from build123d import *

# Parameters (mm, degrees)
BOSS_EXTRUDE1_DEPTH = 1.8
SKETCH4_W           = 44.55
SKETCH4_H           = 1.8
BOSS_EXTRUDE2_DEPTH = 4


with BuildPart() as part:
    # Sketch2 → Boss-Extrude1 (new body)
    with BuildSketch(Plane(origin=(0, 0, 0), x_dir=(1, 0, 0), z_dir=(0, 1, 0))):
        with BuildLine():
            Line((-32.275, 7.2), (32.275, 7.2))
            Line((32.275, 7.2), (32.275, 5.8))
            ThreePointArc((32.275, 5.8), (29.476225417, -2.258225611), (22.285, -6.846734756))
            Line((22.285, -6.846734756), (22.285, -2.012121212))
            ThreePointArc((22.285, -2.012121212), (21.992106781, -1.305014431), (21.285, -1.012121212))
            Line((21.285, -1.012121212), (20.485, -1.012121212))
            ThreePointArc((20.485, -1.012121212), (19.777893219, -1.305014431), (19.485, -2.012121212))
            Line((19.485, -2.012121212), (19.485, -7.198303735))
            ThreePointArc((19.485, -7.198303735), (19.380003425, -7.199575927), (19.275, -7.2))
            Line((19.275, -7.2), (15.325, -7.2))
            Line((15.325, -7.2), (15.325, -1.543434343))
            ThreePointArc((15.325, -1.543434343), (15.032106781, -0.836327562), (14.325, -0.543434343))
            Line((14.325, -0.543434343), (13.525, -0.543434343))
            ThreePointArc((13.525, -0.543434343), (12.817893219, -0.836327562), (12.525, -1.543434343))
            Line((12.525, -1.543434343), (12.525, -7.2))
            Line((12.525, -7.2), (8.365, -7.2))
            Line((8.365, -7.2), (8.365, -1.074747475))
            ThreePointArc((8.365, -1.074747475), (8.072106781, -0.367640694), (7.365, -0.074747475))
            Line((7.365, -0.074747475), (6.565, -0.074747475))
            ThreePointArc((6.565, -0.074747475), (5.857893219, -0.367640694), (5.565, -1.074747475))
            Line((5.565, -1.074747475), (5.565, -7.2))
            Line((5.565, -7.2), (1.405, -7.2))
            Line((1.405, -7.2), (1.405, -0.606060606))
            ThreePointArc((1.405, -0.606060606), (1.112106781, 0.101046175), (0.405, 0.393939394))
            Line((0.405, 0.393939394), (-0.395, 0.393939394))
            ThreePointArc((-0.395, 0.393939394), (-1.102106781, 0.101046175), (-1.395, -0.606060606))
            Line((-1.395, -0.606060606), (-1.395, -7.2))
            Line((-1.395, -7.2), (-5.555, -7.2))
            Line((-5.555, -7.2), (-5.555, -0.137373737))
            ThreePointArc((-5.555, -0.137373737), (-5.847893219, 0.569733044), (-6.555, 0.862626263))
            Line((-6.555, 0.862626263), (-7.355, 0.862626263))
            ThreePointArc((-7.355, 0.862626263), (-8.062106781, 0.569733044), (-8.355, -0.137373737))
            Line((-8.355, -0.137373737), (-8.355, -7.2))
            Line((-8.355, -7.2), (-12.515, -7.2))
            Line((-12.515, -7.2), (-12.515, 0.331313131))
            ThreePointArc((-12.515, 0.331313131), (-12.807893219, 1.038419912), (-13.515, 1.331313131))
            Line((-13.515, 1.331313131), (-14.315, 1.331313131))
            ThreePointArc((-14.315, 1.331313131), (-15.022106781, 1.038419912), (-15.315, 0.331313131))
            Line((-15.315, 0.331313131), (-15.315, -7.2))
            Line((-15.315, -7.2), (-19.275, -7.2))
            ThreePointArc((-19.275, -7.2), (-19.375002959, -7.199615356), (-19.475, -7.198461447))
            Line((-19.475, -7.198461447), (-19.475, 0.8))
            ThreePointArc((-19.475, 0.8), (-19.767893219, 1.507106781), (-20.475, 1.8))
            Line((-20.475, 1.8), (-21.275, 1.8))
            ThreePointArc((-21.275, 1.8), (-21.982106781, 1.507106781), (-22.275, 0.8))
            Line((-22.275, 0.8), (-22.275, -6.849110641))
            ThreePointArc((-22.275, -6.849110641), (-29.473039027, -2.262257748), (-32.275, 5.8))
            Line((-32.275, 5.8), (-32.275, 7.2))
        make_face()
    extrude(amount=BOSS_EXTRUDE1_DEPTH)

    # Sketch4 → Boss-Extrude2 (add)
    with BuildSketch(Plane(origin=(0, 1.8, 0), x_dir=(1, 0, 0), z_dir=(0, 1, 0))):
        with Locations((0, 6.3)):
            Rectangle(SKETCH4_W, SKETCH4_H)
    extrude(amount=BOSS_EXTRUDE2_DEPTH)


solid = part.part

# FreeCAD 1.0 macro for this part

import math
import FreeCAD as App
import Part
import Sketcher
from FreeCAD import Vector

doc = App.newDocument("Part")
body = doc.addObject("PartDesign::Body", "Body")

# Sketch on XZ plane
sketch1 = body.newObject("Sketcher::SketchObject", "Sketch")
sketch1.AttachmentSupport = (doc.getObject("XZ_Plane"), [""])
sketch1.MapMode = "FlatFace"
sketch1.addGeometry([
    Part.LineSegment(Vector(32.275, -7.2, 0), Vector(-32.275, -7.2, 0)),  # 0
    Part.LineSegment(Vector(-32.275, -7.2, 0), Vector(-32.275, -5.8, 0)),  # 1
    Part.ArcOfCircle(Part.Circle(Vector(-19.275, -5.8, 0), Vector(0, 0, 1), 13), math.radians(103.342364), math.radians(180)),  # 2
    Part.LineSegment(Vector(-22.275, 6.849111, 0), Vector(-22.275, -0.8, 0)),  # 3
    Part.ArcOfCircle(Part.Circle(Vector(-21.275, -0.8, 0), Vector(0, 0, 1), 1), math.radians(-180), math.radians(-90)),  # 4
    Part.LineSegment(Vector(-21.275, -1.8, 0), Vector(-20.475, -1.8, 0)),  # 5
    Part.ArcOfCircle(Part.Circle(Vector(-20.475, -0.8, 0), Vector(0, 0, 1), 1), math.radians(-90), math.radians(0)),  # 6
    Part.LineSegment(Vector(-19.475, -0.8, 0), Vector(-19.475, 7.198461, 0)),  # 7
    Part.ArcOfCircle(Part.Circle(Vector(-19.275, -5.799998, 0), Vector(0, 0, 1), 12.999998), math.radians(90), math.radians(90.881508)),  # 8
    Part.LineSegment(Vector(-19.275, 7.2, 0), Vector(-15.315, 7.2, 0)),  # 9
    Part.LineSegment(Vector(-15.315, 7.2, 0), Vector(-15.315, -0.331313, 0)),  # 10
    Part.ArcOfCircle(Part.Circle(Vector(-14.315, -0.331313, 0), Vector(0, 0, 1), 1), math.radians(-180), math.radians(-90)),  # 11
    Part.LineSegment(Vector(-14.315, -1.331313, 0), Vector(-13.515, -1.331313, 0)),  # 12
    Part.ArcOfCircle(Part.Circle(Vector(-13.515, -0.331313, 0), Vector(0, 0, 1), 1), math.radians(-90), math.radians(0)),  # 13
    Part.LineSegment(Vector(-12.515, -0.331313, 0), Vector(-12.515, 7.2, 0)),  # 14
    Part.LineSegment(Vector(-12.515, 7.2, 0), Vector(-8.355, 7.2, 0)),  # 15
    Part.LineSegment(Vector(-8.355, 7.2, 0), Vector(-8.355, 0.137374, 0)),  # 16
    Part.ArcOfCircle(Part.Circle(Vector(-7.355, 0.137374, 0), Vector(0, 0, 1), 1), math.radians(-180), math.radians(-90)),  # 17
    Part.LineSegment(Vector(-7.355, -0.862626, 0), Vector(-6.555, -0.862626, 0)),  # 18
    Part.ArcOfCircle(Part.Circle(Vector(-6.555, 0.137374, 0), Vector(0, 0, 1), 1), math.radians(-90), math.radians(0)),  # 19
    Part.LineSegment(Vector(-5.555, 0.137374, 0), Vector(-5.555, 7.2, 0)),  # 20
    Part.LineSegment(Vector(-5.555, 7.2, 0), Vector(-1.395, 7.2, 0)),  # 21
    Part.LineSegment(Vector(-1.395, 7.2, 0), Vector(-1.395, 0.606061, 0)),  # 22
    Part.ArcOfCircle(Part.Circle(Vector(-0.395, 0.606061, 0), Vector(0, 0, 1), 1), math.radians(-180), math.radians(-90)),  # 23
    Part.LineSegment(Vector(-0.395, -0.393939, 0), Vector(0.405, -0.393939, 0)),  # 24
    Part.ArcOfCircle(Part.Circle(Vector(0.405, 0.606061, 0), Vector(0, 0, 1), 1), math.radians(-90), math.radians(0)),  # 25
    Part.LineSegment(Vector(1.405, 0.606061, 0), Vector(1.405, 7.2, 0)),  # 26
    Part.LineSegment(Vector(1.405, 7.2, 0), Vector(5.565, 7.2, 0)),  # 27
    Part.LineSegment(Vector(5.565, 7.2, 0), Vector(5.565, 1.074747, 0)),  # 28
    Part.ArcOfCircle(Part.Circle(Vector(6.565, 1.074747, 0), Vector(0, 0, 1), 1), math.radians(-180), math.radians(-90)),  # 29
    Part.LineSegment(Vector(6.565, 0.074747, 0), Vector(7.365, 0.074747, 0)),  # 30
    Part.ArcOfCircle(Part.Circle(Vector(7.365, 1.074747, 0), Vector(0, 0, 1), 1), math.radians(-90), math.radians(0)),  # 31
    Part.LineSegment(Vector(8.365, 1.074747, 0), Vector(8.365, 7.2, 0)),  # 32
    Part.LineSegment(Vector(8.365, 7.2, 0), Vector(12.525, 7.2, 0)),  # 33
    Part.LineSegment(Vector(12.525, 7.2, 0), Vector(12.525, 1.543434, 0)),  # 34
    Part.ArcOfCircle(Part.Circle(Vector(13.525, 1.543434, 0), Vector(0, 0, 1), 1), math.radians(-180), math.radians(-90)),  # 35
    Part.LineSegment(Vector(13.525, 0.543434, 0), Vector(14.325, 0.543434, 0)),  # 36
    Part.ArcOfCircle(Part.Circle(Vector(14.325, 1.543434, 0), Vector(0, 0, 1), 1), math.radians(-90), math.radians(0)),  # 37
    Part.LineSegment(Vector(15.325, 1.543434, 0), Vector(15.325, 7.2, 0)),  # 38
    Part.LineSegment(Vector(15.325, 7.2, 0), Vector(19.275, 7.2, 0)),  # 39
    Part.ArcOfCircle(Part.Circle(Vector(19.275, -5.799991, 0), Vector(0, 0, 1), 12.999991), math.radians(89.074412), math.radians(90)),  # 40
    Part.LineSegment(Vector(19.485, 7.198304, 0), Vector(19.485, 2.012121, 0)),  # 41
    Part.ArcOfCircle(Part.Circle(Vector(20.485, 2.012121, 0), Vector(0, 0, 1), 1), math.radians(-180), math.radians(-90)),  # 42
    Part.LineSegment(Vector(20.485, 1.012121, 0), Vector(21.285, 1.012121, 0)),  # 43
    Part.ArcOfCircle(Part.Circle(Vector(21.285, 2.012121, 0), Vector(0, 0, 1), 1), math.radians(-90), math.radians(0)),  # 44
    Part.LineSegment(Vector(22.285, 2.012121, 0), Vector(22.285, 6.846735, 0)),  # 45
    Part.ArcOfCircle(Part.Circle(Vector(19.275, -5.8, 0), Vector(0, 0, 1), 13), math.radians(0), math.radians(76.612336)),  # 46
    Part.LineSegment(Vector(32.275, -5.8, 0), Vector(32.275, -7.2, 0)),  # 47
], False)
sketch1.addConstraint([
    Sketcher.Constraint("Coincident", 0, 2, 1, 1),
    Sketcher.Constraint("Tangent", 1, 2, 2, 2),
    Sketcher.Constraint("Coincident", 2, 1, 3, 1),
    Sketcher.Constraint("Tangent", 3, 2, 4, 1),
    Sketcher.Constraint("Tangent", 4, 2, 5, 1),
    Sketcher.Constraint("Tangent", 5, 2, 6, 1),
    Sketcher.Constraint("Tangent", 6, 2, 7, 1),
    Sketcher.Constraint("Coincident", 7, 2, 8, 2),
    Sketcher.Constraint("Tangent", 8, 1, 9, 1),
    Sketcher.Constraint("Coincident", 9, 2, 10, 1),
    Sketcher.Constraint("Tangent", 10, 2, 11, 1),
    Sketcher.Constraint("Tangent", 11, 2, 12, 1),
    Sketcher.Constraint("Tangent", 12, 2, 13, 1),
    Sketcher.Constraint("Tangent", 13, 2, 14, 1),
    Sketcher.Constraint("Coincident", 14, 2, 15, 1),
    Sketcher.Constraint("Coincident", 15, 2, 16, 1),
    Sketcher.Constraint("Tangent", 16, 2, 17, 1),
    Sketcher.Constraint("Tangent", 17, 2, 18, 1),
    Sketcher.Constraint("Tangent", 18, 2, 19, 1),
    Sketcher.Constraint("Tangent", 19, 2, 20, 1),
    Sketcher.Constraint("Coincident", 20, 2, 21, 1),
    Sketcher.Constraint("Coincident", 21, 2, 22, 1),
    Sketcher.Constraint("Tangent", 22, 2, 23, 1),
    Sketcher.Constraint("Tangent", 23, 2, 24, 1),
    Sketcher.Constraint("Tangent", 24, 2, 25, 1),
    Sketcher.Constraint("Tangent", 25, 2, 26, 1),
    Sketcher.Constraint("Coincident", 26, 2, 27, 1),
    Sketcher.Constraint("Coincident", 27, 2, 28, 1),
    Sketcher.Constraint("Tangent", 28, 2, 29, 1),
    Sketcher.Constraint("Tangent", 29, 2, 30, 1),
    Sketcher.Constraint("Tangent", 30, 2, 31, 1),
    Sketcher.Constraint("Tangent", 31, 2, 32, 1),
    Sketcher.Constraint("Coincident", 32, 2, 33, 1),
    Sketcher.Constraint("Coincident", 33, 2, 34, 1),
    Sketcher.Constraint("Tangent", 34, 2, 35, 1),
    Sketcher.Constraint("Tangent", 35, 2, 36, 1),
    Sketcher.Constraint("Tangent", 36, 2, 37, 1),
    Sketcher.Constraint("Tangent", 37, 2, 38, 1),
    Sketcher.Constraint("Coincident", 38, 2, 39, 1),
    Sketcher.Constraint("Tangent", 39, 2, 40, 2),
    Sketcher.Constraint("Coincident", 40, 1, 41, 1),
    Sketcher.Constraint("Tangent", 41, 2, 42, 1),
    Sketcher.Constraint("Tangent", 42, 2, 43, 1),
    Sketcher.Constraint("Tangent", 43, 2, 44, 1),
    Sketcher.Constraint("Tangent", 44, 2, 45, 1),
    Sketcher.Constraint("Coincident", 45, 2, 46, 2),
    Sketcher.Constraint("Tangent", 46, 1, 47, 1),
    Sketcher.Constraint("Coincident", 47, 2, 0, 1),
    Sketcher.Constraint("Horizontal", 0),
    Sketcher.Constraint("Vertical", 1),
    Sketcher.Constraint("Vertical", 3),
    Sketcher.Constraint("Horizontal", 5),
    Sketcher.Constraint("Vertical", 7),
    Sketcher.Constraint("Horizontal", 9),
    Sketcher.Constraint("Vertical", 10),
    Sketcher.Constraint("Horizontal", 12),
    Sketcher.Constraint("Vertical", 14),
    Sketcher.Constraint("Horizontal", 15),
    Sketcher.Constraint("Vertical", 16),
    Sketcher.Constraint("Horizontal", 18),
    Sketcher.Constraint("Vertical", 20),
    Sketcher.Constraint("Horizontal", 21),
    Sketcher.Constraint("Vertical", 22),
    Sketcher.Constraint("Horizontal", 24),
    Sketcher.Constraint("Vertical", 26),
    Sketcher.Constraint("Horizontal", 27),
    Sketcher.Constraint("Vertical", 28),
    Sketcher.Constraint("Horizontal", 30),
    Sketcher.Constraint("Vertical", 32),
    Sketcher.Constraint("Horizontal", 33),
    Sketcher.Constraint("Vertical", 34),
    Sketcher.Constraint("Horizontal", 36),
    Sketcher.Constraint("Vertical", 38),
    Sketcher.Constraint("Horizontal", 39),
    Sketcher.Constraint("Vertical", 41),
    Sketcher.Constraint("Horizontal", 43),
    Sketcher.Constraint("Vertical", 45),
    Sketcher.Constraint("Vertical", 47),
    Sketcher.Constraint("Coincident", 8, 3, 2, 3),
    Sketcher.Constraint("Coincident", 46, 3, 40, 3),
    Sketcher.Constraint("Equal", 4, 6),
    Sketcher.Constraint("Equal", 2, 8),
    Sketcher.Constraint("Equal", 6, 11),
    Sketcher.Constraint("Equal", 11, 13),
    Sketcher.Constraint("Equal", 13, 17),
    Sketcher.Constraint("Equal", 17, 19),
    Sketcher.Constraint("Equal", 19, 23),
    Sketcher.Constraint("Equal", 23, 25),
    Sketcher.Constraint("Equal", 25, 29),
    Sketcher.Constraint("Equal", 29, 31),
    Sketcher.Constraint("Equal", 31, 35),
    Sketcher.Constraint("Equal", 35, 37),
    Sketcher.Constraint("Equal", 37, 42),
    Sketcher.Constraint("Equal", 42, 44),
    Sketcher.Constraint("Equal", 8, 46),
    Sketcher.Constraint("Symmetric", 2, 3, 40, 3, -2),
    Sketcher.Constraint("Horizontal", 9, 2, 14, 2),
    Sketcher.Constraint("Horizontal", 15, 2, 20, 2),
    Sketcher.Constraint("Horizontal", 21, 2, 26, 2),
    Sketcher.Constraint("Horizontal", 27, 2, 32, 2),
    Sketcher.Constraint("Horizontal", 33, 2, 38, 2),
    Sketcher.Constraint("Equal", 5, 12),
    Sketcher.Constraint("Equal", 12, 18),
    Sketcher.Constraint("Equal", 15, 21),
    Sketcher.Constraint("Equal", 18, 24),
    Sketcher.Constraint("Equal", 21, 27),
    Sketcher.Constraint("Equal", 24, 30),
    Sketcher.Constraint("Equal", 27, 33),
    Sketcher.Constraint("Equal", 30, 36),
    Sketcher.Constraint("Equal", 36, 43),
    Sketcher.Constraint("Radius", 2, 13.0),
    Sketcher.Constraint("Radius", 4, 1.0),
    Sketcher.Constraint("DistanceX", 5, 1, 5, 2, 0.8),
    Sketcher.Constraint("DistanceY", 1, 1, 1, 2, 1.4),
    Sketcher.Constraint("DistanceX", 0, 2, 0, 1, 64.55),
    Sketcher.Constraint("DistanceX", 9, 1, 9, 2, 3.96),
    Sketcher.Constraint("DistanceX", 15, 1, 15, 2, 4.16),
    Sketcher.Constraint("DistanceY", 2, 3, -1, 1, 5.8),
    Sketcher.Constraint("DistanceY", 4, 3, -1, 1, 0.8),
    Sketcher.Constraint("DistanceX", 4, 3, -1, 1, 21.275),
    Sketcher.Constraint("DistanceX", -1, 1, 42, 3, 20.485),
    Sketcher.Constraint("DistanceY", 22, 2, 22, 1, 6.593939),
    Sketcher.Constraint("DistanceY", 10, 2, 10, 1, 7.531313),
    Sketcher.Constraint("DistanceY", 16, 2, 16, 1, 7.062626),
    Sketcher.Constraint("DistanceY", 28, 2, 28, 1, 6.125253),
    Sketcher.Constraint("DistanceY", 34, 2, 34, 1, 5.656566),
    Sketcher.Constraint("DistanceY", 41, 2, 41, 1, 5.186183),
])
pad1 = body.newObject("PartDesign::Pad", "Pad")
pad1.Profile = sketch1
pad1.Length = 1.8
pad1.Reversed = True

# Sketch on XZ plane
sketch2 = body.newObject("Sketcher::SketchObject", "Sketch001")
sketch2.AttachmentSupport = (doc.getObject("XZ_Plane"), [""])
sketch2.MapMode = "FlatFace"
sketch2.AttachmentOffset = App.Placement(Vector(0, 0, -1.8), App.Rotation())
sketch2.addGeometry([
    Part.LineSegment(Vector(-22.275, -7.2, 0), Vector(-22.275, -5.4, 0)),
    Part.LineSegment(Vector(-22.275, -5.4, 0), Vector(22.275, -5.4, 0)),
    Part.LineSegment(Vector(22.275, -5.4, 0), Vector(22.275, -7.2, 0)),
    Part.LineSegment(Vector(22.275, -7.2, 0), Vector(-22.275, -7.2, 0)),
], False)
sketch2.addConstraint([
    Sketcher.Constraint("Coincident", 0, 2, 1, 1),
    Sketcher.Constraint("Coincident", 1, 2, 2, 1),
    Sketcher.Constraint("Coincident", 2, 2, 3, 1),
    Sketcher.Constraint("Coincident", 3, 2, 0, 1),
    Sketcher.Constraint("Vertical", 0),
    Sketcher.Constraint("Horizontal", 1),
    Sketcher.Constraint("Vertical", 2),
    Sketcher.Constraint("Horizontal", 3),
    Sketcher.Constraint("DistanceY", 0, 1, 0, 2, 1.8),
    Sketcher.Constraint("DistanceX", 1, 1, 1, 2, 44.55),
    Sketcher.Constraint("DistanceY", 0, 2, -1, 1, 5.4),
    Sketcher.Constraint("DistanceX", 0, 2, -1, 1, 22.275),
])
pad2 = body.newObject("PartDesign::Pad", "Pad001")
pad2.Profile = sketch2
pad2.Length = 4
pad2.Reversed = True

doc.recompute()
